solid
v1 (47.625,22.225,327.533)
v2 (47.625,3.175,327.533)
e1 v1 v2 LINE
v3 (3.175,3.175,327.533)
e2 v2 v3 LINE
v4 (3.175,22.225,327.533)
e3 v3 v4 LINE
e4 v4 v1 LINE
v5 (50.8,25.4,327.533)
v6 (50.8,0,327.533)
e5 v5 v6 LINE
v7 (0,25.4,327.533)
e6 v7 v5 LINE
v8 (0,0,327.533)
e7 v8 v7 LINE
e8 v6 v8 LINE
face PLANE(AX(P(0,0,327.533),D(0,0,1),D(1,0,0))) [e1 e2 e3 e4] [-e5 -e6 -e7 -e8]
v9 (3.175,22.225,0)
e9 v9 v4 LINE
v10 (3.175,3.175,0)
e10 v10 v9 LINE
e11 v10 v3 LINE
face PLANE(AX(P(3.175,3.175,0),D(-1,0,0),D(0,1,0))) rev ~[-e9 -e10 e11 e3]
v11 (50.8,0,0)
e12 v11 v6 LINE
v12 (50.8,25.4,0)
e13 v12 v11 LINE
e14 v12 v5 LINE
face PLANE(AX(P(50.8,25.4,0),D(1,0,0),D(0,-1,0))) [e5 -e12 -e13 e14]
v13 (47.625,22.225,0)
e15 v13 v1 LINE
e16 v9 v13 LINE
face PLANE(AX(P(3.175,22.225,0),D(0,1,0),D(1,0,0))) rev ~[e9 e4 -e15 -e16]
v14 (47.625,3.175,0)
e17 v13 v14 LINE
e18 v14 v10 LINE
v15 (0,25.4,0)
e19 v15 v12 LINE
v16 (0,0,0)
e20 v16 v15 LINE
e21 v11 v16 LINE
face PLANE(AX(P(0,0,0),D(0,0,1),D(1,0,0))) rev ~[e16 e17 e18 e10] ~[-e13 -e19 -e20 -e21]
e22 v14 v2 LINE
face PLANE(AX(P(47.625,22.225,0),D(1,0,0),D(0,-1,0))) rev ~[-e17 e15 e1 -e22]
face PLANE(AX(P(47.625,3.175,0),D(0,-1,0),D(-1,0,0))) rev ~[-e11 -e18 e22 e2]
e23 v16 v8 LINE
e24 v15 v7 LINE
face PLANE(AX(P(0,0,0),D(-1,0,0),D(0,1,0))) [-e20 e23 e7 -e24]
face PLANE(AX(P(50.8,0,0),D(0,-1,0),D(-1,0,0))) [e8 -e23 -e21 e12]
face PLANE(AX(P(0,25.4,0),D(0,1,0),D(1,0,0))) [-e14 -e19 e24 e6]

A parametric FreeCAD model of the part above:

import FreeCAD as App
import Part
import Sketcher

V = App.Vector
Q = App.Units.Quantity

doc = App.newDocument("Part")
body = doc.addObject("PartDesign::Body", "Body")

# Sketch on XY plane
sketch1 = body.newObject("Sketcher::SketchObject", "Sketch")
sketch1.AttachmentSupport = (doc.getObject("XY_Plane"), [""])
sketch1.MapMode = "FlatFace"
sketch1.addGeometry([
    Part.LineSegment(V(0, 25, 0), V(0, 0, 0)),  # 0
    Part.LineSegment(V(0, 0, 0), V(51, 0, 0)),  # 1
    Part.LineSegment(V(51, 0, 0), V(51, 25, 0)),  # 2
    Part.LineSegment(V(51, 25, 0), V(0, 25, 0)),  # 3
    Part.LineSegment(V(48, 3, 0), V(3, 3, 0)),  # 4
    Part.LineSegment(V(3, 3, 0), V(3, 22, 0)),  # 5
    Part.LineSegment(V(3, 22, 0), V(48, 22, 0)),  # 6
    Part.LineSegment(V(48, 22, 0), V(48, 3, 0)),  # 7
], False)
sketch1.addConstraint([
    Sketcher.Constraint("Coincident", 0, 2, 1, 1),
    Sketcher.Constraint("Coincident", 1, 2, 2, 1),
    Sketcher.Constraint("Coincident", 2, 2, 3, 1),
    Sketcher.Constraint("Coincident", 3, 2, 0, 1),
    Sketcher.Constraint("Coincident", 4, 2, 5, 1),
    Sketcher.Constraint("Coincident", 5, 2, 6, 1),
    Sketcher.Constraint("Coincident", 6, 2, 7, 1),
    Sketcher.Constraint("Coincident", 7, 2, 4, 1),
    Sketcher.Constraint("Vertical", 0),
    Sketcher.Constraint("Horizontal", 1),
    Sketcher.Constraint("Vertical", 2),
    Sketcher.Constraint("Horizontal", 3),
    Sketcher.Constraint("Horizontal", 4),
    Sketcher.Constraint("Vertical", 5),
    Sketcher.Constraint("Horizontal", 6),
    Sketcher.Constraint("Vertical", 7),
    Sketcher.Constraint("Coincident", 0, 2, -1, 1),
    Sketcher.Constraint("DistanceX", 1, 1, 1, 2, Q("2 in")),
    Sketcher.Constraint("DistanceY", 0, 2, 0, 1, Q("1 in")),
    Sketcher.Constraint("DistanceX", -1, 1, 4, 2, Q("0.125 in")),
    Sketcher.Constraint("DistanceY", -1, 1, 4, 2, Q("0.125 in")),
    Sketcher.Constraint("DistanceY", 5, 2, 3, 2, Q("0.125 in")),
    Sketcher.Constraint("DistanceX", 6, 2, 2, 2, Q("0.125 in")),
])
pad1 = body.newObject("PartDesign::Pad", "Pad")
pad1.Profile = sketch1
pad1.Length = Q("12.895 in")

doc.recompute()
